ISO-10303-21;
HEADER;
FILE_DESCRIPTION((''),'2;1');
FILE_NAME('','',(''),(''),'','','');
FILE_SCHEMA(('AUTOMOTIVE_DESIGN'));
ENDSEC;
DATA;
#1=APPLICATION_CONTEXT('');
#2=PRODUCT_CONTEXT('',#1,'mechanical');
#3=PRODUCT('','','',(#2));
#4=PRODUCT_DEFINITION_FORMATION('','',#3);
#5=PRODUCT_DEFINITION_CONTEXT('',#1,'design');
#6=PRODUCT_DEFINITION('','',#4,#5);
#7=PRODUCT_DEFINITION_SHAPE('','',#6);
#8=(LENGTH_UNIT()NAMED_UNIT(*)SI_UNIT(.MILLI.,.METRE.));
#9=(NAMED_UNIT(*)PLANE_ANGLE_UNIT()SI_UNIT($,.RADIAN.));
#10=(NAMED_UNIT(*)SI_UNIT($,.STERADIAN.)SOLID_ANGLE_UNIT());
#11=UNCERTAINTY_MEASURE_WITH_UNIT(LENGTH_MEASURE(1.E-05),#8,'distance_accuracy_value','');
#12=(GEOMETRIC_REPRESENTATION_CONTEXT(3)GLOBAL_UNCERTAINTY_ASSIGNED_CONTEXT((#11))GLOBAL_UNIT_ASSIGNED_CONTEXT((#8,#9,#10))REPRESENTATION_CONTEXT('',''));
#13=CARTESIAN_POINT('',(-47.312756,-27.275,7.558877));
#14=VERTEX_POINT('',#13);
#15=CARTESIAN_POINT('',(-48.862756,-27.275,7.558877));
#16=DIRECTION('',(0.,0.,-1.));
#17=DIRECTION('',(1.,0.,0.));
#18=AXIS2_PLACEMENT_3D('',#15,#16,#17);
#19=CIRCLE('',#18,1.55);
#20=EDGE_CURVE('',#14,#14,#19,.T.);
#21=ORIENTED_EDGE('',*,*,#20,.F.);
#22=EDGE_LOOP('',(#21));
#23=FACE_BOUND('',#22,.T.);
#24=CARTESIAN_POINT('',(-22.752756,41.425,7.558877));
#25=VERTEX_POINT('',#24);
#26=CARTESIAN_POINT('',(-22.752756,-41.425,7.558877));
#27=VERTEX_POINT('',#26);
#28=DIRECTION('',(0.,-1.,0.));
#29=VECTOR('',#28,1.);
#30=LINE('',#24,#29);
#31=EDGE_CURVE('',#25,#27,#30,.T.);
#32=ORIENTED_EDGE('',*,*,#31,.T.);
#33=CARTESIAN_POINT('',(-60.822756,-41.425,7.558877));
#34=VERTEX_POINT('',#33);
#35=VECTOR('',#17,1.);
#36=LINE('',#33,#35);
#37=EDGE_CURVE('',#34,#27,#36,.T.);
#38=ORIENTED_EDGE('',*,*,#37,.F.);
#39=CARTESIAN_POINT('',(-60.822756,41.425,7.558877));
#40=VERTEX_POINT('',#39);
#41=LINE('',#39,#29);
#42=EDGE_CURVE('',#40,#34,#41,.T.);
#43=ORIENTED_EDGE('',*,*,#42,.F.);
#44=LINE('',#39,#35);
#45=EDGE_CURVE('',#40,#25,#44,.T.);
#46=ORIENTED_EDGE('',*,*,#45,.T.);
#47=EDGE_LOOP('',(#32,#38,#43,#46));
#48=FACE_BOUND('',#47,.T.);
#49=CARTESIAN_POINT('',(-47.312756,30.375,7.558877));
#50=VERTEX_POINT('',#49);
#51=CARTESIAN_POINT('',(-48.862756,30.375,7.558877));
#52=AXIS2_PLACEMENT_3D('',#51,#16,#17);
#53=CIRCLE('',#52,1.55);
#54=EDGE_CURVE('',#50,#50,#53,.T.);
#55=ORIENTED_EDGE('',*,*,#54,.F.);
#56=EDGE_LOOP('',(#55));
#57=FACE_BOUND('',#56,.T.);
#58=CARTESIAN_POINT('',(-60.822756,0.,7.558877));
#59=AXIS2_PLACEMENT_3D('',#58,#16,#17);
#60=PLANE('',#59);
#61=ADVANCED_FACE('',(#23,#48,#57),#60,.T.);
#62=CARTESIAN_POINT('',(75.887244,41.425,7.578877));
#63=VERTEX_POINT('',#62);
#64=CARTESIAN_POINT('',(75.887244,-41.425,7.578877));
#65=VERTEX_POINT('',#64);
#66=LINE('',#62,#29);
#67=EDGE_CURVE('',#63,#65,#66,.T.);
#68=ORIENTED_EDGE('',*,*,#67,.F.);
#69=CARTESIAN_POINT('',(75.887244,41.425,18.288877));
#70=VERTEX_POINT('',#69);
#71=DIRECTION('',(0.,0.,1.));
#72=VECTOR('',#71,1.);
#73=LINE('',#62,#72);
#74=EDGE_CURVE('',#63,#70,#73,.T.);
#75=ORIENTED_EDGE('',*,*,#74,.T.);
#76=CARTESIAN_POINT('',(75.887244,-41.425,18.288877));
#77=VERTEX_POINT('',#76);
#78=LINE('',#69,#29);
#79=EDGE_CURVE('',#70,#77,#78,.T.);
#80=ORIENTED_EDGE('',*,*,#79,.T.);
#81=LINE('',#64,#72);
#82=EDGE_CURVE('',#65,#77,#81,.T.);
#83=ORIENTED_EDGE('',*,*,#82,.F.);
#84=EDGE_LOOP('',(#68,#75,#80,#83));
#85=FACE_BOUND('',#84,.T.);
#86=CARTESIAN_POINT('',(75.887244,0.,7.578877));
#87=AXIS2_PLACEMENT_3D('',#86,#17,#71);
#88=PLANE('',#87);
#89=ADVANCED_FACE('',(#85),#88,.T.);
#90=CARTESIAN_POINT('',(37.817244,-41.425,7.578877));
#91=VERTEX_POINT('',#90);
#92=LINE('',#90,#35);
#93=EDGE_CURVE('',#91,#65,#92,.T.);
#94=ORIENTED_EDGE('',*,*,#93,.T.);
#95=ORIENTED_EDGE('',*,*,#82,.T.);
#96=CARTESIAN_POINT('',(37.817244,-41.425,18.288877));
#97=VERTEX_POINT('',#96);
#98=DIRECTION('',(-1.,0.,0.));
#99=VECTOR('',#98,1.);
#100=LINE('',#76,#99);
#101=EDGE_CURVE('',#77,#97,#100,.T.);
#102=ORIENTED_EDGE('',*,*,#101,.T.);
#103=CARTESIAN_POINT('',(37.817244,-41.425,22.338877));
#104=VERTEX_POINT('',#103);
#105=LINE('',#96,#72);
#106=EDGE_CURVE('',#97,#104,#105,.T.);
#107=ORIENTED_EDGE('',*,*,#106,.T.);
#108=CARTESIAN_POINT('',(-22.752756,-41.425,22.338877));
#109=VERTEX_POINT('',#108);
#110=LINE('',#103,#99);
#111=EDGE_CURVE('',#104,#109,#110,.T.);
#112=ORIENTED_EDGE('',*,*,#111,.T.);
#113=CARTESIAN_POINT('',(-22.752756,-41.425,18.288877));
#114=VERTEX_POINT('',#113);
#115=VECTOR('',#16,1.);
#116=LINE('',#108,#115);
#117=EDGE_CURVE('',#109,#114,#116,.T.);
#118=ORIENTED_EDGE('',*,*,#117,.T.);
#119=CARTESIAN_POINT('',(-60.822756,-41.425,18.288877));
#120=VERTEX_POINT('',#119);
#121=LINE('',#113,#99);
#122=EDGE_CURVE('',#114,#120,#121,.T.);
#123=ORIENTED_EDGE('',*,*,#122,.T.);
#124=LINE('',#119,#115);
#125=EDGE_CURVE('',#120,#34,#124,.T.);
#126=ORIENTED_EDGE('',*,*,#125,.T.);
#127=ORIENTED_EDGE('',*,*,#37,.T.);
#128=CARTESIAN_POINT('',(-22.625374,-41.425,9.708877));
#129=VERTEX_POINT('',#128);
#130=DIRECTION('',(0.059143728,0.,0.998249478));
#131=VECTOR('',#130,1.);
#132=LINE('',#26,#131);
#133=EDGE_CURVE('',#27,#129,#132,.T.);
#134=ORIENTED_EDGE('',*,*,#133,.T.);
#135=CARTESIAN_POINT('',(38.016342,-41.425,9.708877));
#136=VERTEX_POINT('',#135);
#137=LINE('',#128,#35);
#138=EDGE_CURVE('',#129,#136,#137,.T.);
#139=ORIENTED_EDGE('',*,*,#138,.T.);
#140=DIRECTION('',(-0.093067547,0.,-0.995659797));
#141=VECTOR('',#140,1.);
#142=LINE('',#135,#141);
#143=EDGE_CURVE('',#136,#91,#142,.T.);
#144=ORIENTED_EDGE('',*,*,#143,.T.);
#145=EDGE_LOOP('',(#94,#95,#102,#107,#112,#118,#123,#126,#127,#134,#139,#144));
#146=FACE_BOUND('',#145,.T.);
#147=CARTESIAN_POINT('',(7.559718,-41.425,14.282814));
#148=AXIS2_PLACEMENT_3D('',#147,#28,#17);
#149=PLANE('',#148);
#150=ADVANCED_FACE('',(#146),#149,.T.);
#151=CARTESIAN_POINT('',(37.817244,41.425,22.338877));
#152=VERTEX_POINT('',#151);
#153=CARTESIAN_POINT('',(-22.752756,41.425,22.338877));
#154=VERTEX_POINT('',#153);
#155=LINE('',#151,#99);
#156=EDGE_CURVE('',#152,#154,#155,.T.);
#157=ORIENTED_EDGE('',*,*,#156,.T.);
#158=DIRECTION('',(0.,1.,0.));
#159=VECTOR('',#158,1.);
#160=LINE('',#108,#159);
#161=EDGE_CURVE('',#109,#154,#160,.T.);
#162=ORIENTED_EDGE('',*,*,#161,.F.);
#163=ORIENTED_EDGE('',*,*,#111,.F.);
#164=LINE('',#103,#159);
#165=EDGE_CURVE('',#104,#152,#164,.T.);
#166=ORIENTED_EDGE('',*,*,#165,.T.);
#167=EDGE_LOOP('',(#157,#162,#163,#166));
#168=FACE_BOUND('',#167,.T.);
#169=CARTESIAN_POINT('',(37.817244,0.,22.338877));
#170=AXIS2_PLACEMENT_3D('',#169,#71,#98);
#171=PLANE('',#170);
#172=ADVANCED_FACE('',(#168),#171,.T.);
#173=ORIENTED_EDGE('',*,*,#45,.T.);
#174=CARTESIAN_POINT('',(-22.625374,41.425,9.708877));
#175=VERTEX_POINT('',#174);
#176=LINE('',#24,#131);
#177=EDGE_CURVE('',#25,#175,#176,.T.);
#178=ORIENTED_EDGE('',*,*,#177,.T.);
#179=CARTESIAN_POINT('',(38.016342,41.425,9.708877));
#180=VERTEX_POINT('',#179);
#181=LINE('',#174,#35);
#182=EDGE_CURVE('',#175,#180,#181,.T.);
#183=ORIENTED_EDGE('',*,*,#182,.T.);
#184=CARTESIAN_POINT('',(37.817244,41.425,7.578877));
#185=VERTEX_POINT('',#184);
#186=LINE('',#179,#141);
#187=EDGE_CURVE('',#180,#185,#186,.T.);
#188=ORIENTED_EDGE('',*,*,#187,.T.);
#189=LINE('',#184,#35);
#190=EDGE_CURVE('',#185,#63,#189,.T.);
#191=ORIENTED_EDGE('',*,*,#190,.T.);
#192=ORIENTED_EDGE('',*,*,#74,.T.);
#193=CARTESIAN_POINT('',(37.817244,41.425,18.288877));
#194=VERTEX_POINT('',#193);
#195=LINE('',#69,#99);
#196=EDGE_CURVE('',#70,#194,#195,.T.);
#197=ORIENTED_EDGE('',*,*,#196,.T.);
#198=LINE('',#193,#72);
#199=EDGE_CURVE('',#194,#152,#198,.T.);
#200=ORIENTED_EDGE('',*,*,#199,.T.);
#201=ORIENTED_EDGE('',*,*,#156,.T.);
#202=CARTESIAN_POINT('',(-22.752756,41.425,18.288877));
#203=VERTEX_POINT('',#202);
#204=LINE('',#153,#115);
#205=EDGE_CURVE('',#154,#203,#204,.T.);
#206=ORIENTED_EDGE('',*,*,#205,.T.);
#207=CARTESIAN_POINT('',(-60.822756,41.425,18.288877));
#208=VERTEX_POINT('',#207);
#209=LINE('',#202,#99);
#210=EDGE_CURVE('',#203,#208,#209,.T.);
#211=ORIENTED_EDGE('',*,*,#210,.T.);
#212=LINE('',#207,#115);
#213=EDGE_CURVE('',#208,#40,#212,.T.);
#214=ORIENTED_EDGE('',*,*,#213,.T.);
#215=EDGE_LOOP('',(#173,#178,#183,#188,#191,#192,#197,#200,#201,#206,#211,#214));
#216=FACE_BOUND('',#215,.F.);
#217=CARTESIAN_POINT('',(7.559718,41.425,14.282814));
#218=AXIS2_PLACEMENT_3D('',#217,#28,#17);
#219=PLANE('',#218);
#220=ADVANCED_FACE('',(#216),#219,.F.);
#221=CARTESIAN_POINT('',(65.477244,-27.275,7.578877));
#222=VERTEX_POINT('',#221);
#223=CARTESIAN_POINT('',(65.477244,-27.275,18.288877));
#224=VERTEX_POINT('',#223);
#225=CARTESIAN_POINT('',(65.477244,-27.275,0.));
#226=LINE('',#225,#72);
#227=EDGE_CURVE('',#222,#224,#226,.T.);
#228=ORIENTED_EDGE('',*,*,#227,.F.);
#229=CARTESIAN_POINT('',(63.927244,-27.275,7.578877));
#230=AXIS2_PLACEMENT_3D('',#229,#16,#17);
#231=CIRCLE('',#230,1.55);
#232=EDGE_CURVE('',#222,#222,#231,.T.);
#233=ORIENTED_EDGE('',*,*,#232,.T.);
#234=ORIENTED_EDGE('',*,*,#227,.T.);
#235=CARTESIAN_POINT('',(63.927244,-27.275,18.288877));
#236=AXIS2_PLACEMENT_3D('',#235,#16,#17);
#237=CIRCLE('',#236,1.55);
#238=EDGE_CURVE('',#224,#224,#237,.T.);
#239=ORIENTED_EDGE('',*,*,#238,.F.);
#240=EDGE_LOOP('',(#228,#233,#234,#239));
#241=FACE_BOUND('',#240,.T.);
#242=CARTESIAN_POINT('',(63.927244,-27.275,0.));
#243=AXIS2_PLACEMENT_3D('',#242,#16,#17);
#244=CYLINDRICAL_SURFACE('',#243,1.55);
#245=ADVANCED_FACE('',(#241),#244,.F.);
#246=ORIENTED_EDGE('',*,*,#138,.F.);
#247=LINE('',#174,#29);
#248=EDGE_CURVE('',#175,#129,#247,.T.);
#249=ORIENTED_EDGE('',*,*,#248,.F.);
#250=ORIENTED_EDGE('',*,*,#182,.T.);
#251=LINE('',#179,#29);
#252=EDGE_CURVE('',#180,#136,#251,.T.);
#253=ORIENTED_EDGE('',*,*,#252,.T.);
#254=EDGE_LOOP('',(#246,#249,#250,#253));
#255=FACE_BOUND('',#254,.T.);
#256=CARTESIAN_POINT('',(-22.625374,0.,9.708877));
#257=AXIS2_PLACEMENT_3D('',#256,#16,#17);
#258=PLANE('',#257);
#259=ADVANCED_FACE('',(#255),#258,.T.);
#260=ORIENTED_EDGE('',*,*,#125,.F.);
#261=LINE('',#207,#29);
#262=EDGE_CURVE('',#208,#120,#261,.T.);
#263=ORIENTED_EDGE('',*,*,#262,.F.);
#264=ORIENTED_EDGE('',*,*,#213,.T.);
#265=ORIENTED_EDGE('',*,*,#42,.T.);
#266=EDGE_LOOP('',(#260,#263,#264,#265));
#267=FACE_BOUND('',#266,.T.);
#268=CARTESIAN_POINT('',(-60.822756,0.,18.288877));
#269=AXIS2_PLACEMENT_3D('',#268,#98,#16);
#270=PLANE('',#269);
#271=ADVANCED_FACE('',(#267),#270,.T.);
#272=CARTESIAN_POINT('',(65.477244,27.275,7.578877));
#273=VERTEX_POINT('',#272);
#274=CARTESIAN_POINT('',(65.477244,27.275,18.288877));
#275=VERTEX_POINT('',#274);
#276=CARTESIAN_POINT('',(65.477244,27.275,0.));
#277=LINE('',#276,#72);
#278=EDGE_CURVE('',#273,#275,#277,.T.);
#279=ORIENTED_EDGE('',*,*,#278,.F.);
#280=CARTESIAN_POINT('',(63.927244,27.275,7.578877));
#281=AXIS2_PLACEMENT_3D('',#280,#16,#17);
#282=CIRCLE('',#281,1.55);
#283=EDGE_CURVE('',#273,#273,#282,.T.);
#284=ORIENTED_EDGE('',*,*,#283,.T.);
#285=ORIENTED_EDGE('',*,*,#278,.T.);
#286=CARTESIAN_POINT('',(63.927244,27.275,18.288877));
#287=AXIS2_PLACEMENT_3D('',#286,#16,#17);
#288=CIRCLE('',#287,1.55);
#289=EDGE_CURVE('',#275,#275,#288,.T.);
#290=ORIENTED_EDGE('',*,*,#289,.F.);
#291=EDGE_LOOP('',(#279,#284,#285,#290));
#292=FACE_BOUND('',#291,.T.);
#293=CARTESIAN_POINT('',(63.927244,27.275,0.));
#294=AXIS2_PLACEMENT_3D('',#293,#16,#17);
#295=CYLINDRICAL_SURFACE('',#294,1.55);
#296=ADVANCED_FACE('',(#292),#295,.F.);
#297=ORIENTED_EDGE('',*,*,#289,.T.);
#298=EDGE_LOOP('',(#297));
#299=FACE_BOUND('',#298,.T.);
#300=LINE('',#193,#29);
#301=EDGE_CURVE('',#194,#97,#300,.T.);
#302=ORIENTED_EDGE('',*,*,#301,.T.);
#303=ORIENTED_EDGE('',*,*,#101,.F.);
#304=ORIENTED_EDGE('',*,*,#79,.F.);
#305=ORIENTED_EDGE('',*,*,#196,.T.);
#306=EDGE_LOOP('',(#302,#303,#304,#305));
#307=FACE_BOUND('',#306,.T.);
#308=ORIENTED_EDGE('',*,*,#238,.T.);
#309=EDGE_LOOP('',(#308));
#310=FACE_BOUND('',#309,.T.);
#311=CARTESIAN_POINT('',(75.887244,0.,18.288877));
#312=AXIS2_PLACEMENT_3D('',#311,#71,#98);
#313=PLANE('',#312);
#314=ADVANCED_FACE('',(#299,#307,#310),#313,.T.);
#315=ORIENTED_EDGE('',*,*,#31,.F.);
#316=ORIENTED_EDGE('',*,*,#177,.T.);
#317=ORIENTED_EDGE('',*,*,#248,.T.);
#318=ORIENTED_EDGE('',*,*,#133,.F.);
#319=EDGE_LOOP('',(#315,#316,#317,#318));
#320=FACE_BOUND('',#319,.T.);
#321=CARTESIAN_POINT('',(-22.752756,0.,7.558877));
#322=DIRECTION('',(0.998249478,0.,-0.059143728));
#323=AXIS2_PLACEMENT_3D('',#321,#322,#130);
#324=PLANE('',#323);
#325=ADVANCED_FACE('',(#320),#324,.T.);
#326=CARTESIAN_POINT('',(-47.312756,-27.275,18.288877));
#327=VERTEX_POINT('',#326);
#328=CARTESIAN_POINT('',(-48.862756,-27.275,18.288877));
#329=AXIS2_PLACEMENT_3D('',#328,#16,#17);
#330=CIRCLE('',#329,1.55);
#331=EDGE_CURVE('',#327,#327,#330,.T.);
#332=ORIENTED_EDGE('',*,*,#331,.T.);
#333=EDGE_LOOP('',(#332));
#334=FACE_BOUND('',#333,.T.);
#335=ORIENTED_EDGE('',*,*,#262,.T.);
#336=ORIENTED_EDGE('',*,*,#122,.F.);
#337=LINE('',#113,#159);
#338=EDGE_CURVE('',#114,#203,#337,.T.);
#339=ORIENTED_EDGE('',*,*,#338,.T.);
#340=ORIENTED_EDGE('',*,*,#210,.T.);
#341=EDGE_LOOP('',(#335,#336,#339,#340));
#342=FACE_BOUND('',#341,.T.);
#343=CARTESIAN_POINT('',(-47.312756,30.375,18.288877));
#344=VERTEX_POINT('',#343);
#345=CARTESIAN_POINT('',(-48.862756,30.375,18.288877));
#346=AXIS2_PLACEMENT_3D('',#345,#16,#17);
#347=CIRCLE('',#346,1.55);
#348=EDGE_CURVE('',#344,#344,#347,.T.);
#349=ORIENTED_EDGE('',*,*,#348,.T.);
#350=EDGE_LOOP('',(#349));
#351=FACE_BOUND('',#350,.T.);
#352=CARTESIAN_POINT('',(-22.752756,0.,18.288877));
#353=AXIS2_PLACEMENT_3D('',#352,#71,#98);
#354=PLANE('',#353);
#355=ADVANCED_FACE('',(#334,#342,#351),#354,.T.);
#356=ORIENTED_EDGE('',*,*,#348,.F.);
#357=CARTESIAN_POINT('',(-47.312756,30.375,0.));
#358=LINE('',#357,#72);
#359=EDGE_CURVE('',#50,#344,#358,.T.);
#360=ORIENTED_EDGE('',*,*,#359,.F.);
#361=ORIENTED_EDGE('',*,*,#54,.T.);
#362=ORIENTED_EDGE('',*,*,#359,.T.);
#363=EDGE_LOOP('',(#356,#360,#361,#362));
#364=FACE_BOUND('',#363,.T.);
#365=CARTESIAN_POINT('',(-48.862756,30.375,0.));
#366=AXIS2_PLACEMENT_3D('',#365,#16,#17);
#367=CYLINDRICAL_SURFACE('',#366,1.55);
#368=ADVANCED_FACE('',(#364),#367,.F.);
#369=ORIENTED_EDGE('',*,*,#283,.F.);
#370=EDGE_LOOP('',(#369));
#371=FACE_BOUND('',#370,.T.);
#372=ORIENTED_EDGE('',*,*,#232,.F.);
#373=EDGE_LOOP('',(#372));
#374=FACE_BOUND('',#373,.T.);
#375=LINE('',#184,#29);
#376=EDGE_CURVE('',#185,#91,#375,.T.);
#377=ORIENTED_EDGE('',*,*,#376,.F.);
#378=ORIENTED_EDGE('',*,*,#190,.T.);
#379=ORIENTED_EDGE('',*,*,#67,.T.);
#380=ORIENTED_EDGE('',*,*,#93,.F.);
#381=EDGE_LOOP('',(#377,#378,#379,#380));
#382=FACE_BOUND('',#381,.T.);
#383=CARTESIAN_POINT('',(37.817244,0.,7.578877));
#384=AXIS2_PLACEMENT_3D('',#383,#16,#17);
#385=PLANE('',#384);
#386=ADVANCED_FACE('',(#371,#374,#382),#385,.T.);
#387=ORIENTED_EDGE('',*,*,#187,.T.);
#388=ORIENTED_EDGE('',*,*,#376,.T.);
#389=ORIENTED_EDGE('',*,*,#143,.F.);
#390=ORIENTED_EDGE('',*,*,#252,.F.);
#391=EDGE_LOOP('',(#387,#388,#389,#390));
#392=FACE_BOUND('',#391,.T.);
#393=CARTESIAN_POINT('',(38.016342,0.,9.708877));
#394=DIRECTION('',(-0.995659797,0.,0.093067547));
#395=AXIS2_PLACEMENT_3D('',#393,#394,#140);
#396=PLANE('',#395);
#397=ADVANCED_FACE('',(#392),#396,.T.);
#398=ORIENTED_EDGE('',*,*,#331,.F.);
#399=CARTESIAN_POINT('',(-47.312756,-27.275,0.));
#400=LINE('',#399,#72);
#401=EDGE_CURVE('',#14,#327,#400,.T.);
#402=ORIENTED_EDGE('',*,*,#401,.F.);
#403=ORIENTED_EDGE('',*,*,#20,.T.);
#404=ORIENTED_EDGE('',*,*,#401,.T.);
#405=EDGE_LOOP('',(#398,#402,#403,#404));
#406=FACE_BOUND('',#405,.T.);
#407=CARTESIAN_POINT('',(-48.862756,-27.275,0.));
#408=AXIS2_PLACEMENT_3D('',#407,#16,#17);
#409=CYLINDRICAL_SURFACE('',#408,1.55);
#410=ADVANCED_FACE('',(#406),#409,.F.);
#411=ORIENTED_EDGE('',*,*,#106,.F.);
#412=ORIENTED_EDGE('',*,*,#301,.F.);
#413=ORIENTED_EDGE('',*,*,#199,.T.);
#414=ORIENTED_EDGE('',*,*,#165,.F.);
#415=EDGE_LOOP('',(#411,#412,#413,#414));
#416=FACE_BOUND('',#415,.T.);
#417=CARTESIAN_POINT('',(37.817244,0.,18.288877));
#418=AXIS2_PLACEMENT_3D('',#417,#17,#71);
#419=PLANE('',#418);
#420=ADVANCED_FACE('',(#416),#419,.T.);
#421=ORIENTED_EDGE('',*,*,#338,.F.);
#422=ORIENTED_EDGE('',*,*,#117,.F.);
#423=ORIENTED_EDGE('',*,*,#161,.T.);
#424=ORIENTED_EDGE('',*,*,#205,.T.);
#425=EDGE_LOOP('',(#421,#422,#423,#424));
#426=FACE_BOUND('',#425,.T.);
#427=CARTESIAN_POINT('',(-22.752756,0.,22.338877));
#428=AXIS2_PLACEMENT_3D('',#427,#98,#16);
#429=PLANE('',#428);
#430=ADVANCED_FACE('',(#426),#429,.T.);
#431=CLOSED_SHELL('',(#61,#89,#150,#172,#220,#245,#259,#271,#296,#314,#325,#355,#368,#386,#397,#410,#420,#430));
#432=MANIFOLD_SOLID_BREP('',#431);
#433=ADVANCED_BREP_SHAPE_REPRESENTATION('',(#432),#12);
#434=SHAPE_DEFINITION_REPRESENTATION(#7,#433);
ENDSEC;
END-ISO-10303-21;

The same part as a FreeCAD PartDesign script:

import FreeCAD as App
import Part
import Sketcher
from FreeCAD import Vector
Q = App.Units.Quantity


def add_polygon(sketch, points):
    """Adds a closed chain of lines whose ends are joined by coincident constraints."""
    first, n = sketch.GeometryCount, len(points)
    for a, b in zip(points, points[1:] + points[:1]):
        sketch.addGeometry(Part.LineSegment(App.Vector(*a, 0), App.Vector(*b, 0)), False)
    for i in range(n):
        sketch.addConstraint(Sketcher.Constraint("Coincident", first + i, 2, first + (i + 1) % n, 1))

doc = App.newDocument("Part")
body = doc.addObject("PartDesign::Body", "Body")

sketch1 = body.newObject("Sketcher::SketchObject", "Sketch")
sketch1.AttachmentSupport = (doc.getObject("XZ_Plane"), [""])
sketch1.MapMode = "FlatFace"
add_polygon(sketch1, [(-22.8, 18.3), (-60.8, 18.3), (-60.8, 7.6), (-22.8, 7.6), (-22.6, 9.7), (38, 9.7), (37.8, 7.6), (75.9, 7.6), (75.9, 18.3), (37.8, 18.3), (37.8, 22.3), (-22.8, 22.3)])
sketch1.addConstraint([
    Sketcher.Constraint("Horizontal", 0),
    Sketcher.Constraint("Vertical", 1),
    Sketcher.Constraint("Horizontal", 2),
    Sketcher.Constraint("Horizontal", 4),
    Sketcher.Constraint("Horizontal", 6),
    Sketcher.Constraint("Vertical", 7),
    Sketcher.Constraint("Horizontal", 8),
    Sketcher.Constraint("Vertical", 9),
    Sketcher.Constraint("Horizontal", 10),
    Sketcher.Constraint("Vertical", 11),
    Sketcher.Constraint("Horizontal", 0, 2, 7, 2),
    Sketcher.Constraint("Vertical", 5, 2, 8, 2),
    Sketcher.Constraint("Vertical", 2, 2, 10, 2),
    Sketcher.Constraint("Equal", 2, 6),
    Sketcher.Constraint("DistanceX", 0, 2, 0, 1, Q("38.07 mm")),
    Sketcher.Constraint("DistanceX", 10, 2, 10, 1, Q("60.57 mm")),
    Sketcher.Constraint("DistanceY", 1, 2, 1, 1, Q("10.73 mm")),
    Sketcher.Constraint("DistanceY", 7, 1, 7, 2, Q("10.71 mm")),
    Sketcher.Constraint("DistanceY", 9, 1, 9, 2, Q("4.05 mm")),
    Sketcher.Constraint("DistanceY", 2, 2, 3, 2, Q("2.15 mm")),
    Sketcher.Constraint("DistanceX", 1, 2, 4, 2, Q("98.839098 mm")),
    Sketcher.Constraint("Distance", 3, Q("2.15377 mm")),
    Sketcher.Constraint("DistanceX", 0, 2, -1, 1, Q("60.822756 mm")),
    Sketcher.Constraint("DistanceY", -1, 1, 0, 2, Q("18.288877 mm")),
])
pad1 = body.newObject("PartDesign::Pad", "Pad")
pad1.Profile = sketch1
pad1.Length = 82.85
pad1.Midplane = True

sketch2 = body.newObject("Sketcher::SketchObject", "Sketch001")
sketch2.AttachmentSupport = (doc.getObject("XY_Plane"), [""])
sketch2.MapMode = "FlatFace"
sketch2.addGeometry([
    Part.Circle(Vector(-48.9, 30.4, 0), Vector(0, 0, 1), 1.6),
    Part.Circle(Vector(63.9, 27.3, 0), Vector(0, 0, 1), 1.6),
    Part.Circle(Vector(63.9, -27.3, 0), Vector(0, 0, 1), 1.6),
    Part.Circle(Vector(-48.9, -27.3, 0), Vector(0, 0, 1), 1.6),
], False)
sketch2.addConstraint([
    Sketcher.Constraint("Equal", 0, 1),
    Sketcher.Constraint("Equal", 1, 2),
    Sketcher.Constraint("Equal", 2, 3),
    Sketcher.Constraint("Symmetric", 1, 3, 2, 3, -1),
    Sketcher.Constraint("Horizontal", 2, 3, 3, 3),
    Sketcher.Constraint("Vertical", 0, 3, 3, 3),
    Sketcher.Constraint("Diameter", 0, Q("3.1 mm")),
    Sketcher.Constraint("DistanceY", 1, 3, 0, 3, Q("3.1 mm")),
    Sketcher.Constraint("DistanceX", 0, 3, 1, 3, Q("112.79 mm")),
    Sketcher.Constraint("DistanceY", 2, 3, 1, 3, Q("54.55 mm")),
    Sketcher.Constraint("DistanceX", 0, 3, -1, 1, Q("48.862756 mm")),
])
pocket1 = body.newObject("PartDesign::Pocket", "Pocket")
pocket1.Profile = sketch2
pocket1.Type = "ThroughAll"
pocket1.Reversed = True

doc.recompute()
